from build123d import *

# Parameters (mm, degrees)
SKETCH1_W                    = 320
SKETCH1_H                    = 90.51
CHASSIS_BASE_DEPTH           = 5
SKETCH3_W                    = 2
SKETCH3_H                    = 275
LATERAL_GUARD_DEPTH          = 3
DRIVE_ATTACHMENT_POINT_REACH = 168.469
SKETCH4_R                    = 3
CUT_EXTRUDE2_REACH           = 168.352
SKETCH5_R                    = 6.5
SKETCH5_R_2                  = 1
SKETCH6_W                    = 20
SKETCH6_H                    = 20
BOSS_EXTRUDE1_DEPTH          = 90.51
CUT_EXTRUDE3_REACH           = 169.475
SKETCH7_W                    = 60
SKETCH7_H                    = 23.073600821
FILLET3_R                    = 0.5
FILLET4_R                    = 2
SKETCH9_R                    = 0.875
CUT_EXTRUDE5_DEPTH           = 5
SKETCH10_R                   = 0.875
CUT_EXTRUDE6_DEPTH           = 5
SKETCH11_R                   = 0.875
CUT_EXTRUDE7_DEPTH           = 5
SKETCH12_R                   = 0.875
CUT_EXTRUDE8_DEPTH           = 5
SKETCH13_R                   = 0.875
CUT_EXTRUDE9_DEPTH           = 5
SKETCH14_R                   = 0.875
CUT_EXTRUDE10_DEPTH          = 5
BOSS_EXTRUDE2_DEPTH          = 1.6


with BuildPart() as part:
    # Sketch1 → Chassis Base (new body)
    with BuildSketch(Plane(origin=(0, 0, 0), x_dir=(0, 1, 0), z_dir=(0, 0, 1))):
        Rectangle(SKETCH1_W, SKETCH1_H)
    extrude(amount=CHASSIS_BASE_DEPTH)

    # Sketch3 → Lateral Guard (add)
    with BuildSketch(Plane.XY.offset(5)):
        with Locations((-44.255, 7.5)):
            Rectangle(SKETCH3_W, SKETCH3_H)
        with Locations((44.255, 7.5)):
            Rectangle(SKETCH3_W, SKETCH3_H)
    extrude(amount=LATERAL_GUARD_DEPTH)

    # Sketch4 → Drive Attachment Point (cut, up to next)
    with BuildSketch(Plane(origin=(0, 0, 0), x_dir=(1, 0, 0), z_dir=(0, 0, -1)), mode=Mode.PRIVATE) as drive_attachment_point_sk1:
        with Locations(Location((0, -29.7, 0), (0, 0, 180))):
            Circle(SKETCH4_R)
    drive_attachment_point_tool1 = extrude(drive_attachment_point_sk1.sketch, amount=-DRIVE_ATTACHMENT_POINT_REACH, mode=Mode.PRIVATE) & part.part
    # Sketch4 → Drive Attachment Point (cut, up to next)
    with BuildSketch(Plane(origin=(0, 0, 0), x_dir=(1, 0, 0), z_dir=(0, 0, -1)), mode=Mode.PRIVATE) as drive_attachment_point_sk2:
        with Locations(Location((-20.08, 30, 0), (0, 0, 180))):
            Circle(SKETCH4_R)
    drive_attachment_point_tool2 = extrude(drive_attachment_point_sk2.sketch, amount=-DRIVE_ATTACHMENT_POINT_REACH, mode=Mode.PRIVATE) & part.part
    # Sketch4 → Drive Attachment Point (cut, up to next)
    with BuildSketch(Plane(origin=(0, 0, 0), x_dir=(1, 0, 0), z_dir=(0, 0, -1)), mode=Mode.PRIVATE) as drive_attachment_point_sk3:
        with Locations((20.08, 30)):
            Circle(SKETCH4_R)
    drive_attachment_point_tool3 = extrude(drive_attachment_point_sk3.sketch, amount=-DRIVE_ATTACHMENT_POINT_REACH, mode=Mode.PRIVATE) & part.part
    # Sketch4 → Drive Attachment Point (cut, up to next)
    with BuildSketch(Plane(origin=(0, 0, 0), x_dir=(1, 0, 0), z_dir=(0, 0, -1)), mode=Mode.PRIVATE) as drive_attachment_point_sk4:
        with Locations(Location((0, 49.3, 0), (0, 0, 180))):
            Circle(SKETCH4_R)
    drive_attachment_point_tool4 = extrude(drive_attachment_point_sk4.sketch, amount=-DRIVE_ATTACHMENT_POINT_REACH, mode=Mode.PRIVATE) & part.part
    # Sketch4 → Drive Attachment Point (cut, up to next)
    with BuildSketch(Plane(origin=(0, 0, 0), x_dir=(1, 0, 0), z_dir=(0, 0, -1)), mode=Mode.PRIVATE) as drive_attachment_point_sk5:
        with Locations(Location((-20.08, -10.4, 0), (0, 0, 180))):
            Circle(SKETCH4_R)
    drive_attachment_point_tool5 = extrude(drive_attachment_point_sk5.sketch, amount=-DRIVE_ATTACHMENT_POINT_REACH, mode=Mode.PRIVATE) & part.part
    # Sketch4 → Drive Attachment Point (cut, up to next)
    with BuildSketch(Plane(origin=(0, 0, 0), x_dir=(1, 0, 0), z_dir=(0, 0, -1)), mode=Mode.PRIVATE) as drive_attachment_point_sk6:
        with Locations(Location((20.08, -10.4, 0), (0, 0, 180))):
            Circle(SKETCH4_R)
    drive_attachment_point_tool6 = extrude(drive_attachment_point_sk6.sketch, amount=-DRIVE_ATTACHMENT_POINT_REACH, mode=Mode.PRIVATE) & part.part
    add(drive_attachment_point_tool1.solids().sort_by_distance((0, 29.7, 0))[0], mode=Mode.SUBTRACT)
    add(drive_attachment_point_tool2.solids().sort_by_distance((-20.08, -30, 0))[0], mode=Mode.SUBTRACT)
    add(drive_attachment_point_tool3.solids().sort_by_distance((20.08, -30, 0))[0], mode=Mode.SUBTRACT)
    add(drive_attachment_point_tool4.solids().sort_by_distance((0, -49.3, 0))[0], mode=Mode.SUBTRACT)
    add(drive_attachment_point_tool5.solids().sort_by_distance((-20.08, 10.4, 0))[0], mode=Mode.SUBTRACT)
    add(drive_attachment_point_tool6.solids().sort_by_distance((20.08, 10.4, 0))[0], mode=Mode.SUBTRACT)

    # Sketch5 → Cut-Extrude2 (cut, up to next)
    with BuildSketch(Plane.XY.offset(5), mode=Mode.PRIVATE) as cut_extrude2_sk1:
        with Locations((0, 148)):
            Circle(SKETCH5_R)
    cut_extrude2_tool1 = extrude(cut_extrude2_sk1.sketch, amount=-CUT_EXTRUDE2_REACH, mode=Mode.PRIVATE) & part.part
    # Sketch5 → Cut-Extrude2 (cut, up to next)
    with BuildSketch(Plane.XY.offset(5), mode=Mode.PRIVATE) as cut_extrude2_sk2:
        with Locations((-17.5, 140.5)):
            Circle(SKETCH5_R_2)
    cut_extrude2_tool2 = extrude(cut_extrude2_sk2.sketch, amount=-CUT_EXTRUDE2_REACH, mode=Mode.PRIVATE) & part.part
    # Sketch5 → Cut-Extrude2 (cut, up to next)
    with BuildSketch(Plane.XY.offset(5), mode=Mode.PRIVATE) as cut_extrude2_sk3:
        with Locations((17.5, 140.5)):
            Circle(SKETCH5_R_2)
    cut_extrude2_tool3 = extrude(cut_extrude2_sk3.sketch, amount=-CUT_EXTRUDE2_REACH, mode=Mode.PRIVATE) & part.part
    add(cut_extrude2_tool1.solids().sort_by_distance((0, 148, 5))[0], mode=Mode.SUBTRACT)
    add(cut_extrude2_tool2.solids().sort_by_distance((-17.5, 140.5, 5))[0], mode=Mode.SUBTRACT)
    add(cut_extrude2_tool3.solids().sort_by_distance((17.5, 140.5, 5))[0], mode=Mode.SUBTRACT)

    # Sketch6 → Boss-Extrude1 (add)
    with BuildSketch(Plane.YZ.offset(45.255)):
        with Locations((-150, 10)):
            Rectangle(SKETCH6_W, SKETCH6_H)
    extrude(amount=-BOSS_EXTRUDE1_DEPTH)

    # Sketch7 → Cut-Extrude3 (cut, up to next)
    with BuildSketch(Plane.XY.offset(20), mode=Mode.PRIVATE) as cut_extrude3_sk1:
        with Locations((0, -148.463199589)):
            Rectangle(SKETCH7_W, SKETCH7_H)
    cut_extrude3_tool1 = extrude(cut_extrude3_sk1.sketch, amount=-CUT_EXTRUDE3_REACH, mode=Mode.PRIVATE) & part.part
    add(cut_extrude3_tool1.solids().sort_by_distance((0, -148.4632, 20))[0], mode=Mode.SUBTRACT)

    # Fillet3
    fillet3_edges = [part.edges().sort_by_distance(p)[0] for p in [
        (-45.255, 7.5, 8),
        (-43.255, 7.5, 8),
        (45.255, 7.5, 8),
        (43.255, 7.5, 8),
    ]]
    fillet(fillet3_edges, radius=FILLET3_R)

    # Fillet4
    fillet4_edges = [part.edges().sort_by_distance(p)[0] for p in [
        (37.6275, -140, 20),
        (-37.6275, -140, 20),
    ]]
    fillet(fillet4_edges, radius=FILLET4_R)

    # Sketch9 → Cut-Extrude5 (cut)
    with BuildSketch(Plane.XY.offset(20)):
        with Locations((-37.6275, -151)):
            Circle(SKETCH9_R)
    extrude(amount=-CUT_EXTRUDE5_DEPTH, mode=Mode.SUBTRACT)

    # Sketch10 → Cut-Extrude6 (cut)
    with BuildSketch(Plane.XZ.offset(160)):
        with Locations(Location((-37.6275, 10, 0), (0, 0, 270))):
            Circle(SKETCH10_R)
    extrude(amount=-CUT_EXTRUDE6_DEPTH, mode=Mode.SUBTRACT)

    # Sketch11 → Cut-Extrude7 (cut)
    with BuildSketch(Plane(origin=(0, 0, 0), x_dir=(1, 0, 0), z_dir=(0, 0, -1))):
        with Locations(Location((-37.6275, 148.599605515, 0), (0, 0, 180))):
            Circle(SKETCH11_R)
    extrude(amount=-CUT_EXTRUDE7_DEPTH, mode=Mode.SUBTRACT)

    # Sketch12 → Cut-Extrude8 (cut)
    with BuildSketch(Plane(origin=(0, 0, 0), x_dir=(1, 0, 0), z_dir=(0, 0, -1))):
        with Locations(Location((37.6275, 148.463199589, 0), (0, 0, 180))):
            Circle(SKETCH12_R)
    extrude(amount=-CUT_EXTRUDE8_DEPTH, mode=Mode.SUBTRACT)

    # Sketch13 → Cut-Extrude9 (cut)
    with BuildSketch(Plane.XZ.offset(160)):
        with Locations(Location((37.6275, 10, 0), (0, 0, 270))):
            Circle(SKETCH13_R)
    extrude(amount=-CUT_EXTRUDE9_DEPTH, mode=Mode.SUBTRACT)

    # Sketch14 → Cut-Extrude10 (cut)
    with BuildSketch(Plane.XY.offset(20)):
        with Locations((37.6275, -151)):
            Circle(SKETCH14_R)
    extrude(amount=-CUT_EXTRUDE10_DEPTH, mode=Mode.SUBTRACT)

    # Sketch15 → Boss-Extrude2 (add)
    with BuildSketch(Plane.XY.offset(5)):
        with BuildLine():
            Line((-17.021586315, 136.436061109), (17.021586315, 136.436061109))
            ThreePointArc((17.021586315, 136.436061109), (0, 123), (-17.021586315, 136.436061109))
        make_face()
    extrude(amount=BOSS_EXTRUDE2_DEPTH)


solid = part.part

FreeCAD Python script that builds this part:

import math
import FreeCAD as App
import Part
import Sketcher
from FreeCAD import Vector
Q = App.Units.Quantity


def edges_at(feature, points):
    """Names of the edges that pass closest to the given points."""
    edges = feature.Shape.Edges
    near = lambda p: min(range(len(edges)), key=lambda i: edges[i].distToShape(Part.Vertex(*p))[0])
    return sorted({f"Edge{near(p) + 1}" for p in points})


def add_polygon(sketch, points):
    """Adds a closed chain of lines whose ends are joined by coincident constraints."""
    first, n = sketch.GeometryCount, len(points)
    for a, b in zip(points, points[1:] + points[:1]):
        sketch.addGeometry(Part.LineSegment(App.Vector(*a, 0), App.Vector(*b, 0)), False)
    for i in range(n):
        sketch.addConstraint(Sketcher.Constraint("Coincident", first + i, 2, first + (i + 1) % n, 1))

doc = App.newDocument("Part")
params = doc.addObject("Spreadsheet::Sheet", "Params")
for row, (alias, value) in enumerate([
    ("sketch1_height", "320 mm"),
    ("sketch1_width", "90.51 mm"),
    ("pad1_length", "5 mm"),
    ("sketch2_width", "2 mm"),
    ("sketch2_height", "275 mm"),
    ("pad2_length", "3 mm"),
    ("sketch3_diameter", "6 mm"),
    ("sketch4_diameter", "6 mm"),
    ("sketch5_diameter", "6 mm"),
    ("sketch6_diameter", "6 mm"),
    ("sketch7_diameter", "6 mm"),
    ("sketch8_diameter", "6 mm"),
    ("sketch9_diameter", "13 mm"),
    ("sketch10_diameter", "2 mm"),
    ("sketch11_diameter", "2 mm"),
    ("sketch12_width", "20 mm"),
    ("pad3_length", "90.51 mm"),
    ("sketch13_width", "60 mm"),
    ("fillet_radius", "0.5 mm"),
    ("fillet2_radius", "2 mm"),
    ("sketch14_diameter", "1.75 mm"),
    ("pocket11_length", "5 mm"),
    ("sketch15_diameter", "1.75 mm"),
    ("pocket12_length", "5 mm"),
    ("sketch16_diameter", "1.75 mm"),
    ("pocket13_length", "5 mm"),
    ("sketch17_diameter", "1.75 mm"),
    ("pocket14_length", "5 mm"),
    ("sketch18_diameter", "1.75 mm"),
    ("pocket15_length", "5 mm"),
    ("sketch19_diameter", "1.75 mm"),
    ("pocket16_length", "5 mm"),
    ("sketch20_radius", "17.5 mm"),
    ("pad4_length", "1.6 mm"),
], start=1):
    params.set(f"A{row}", alias)
    params.set(f"B{row}", "=" + value)
    params.setAlias(f"B{row}", alias)

body = doc.addObject("PartDesign::Body", "Body")

# Sketch on XY plane
sketch1 = body.newObject("Sketcher::SketchObject", "Sketch")
sketch1.AttachmentSupport = (doc.getObject("XY_Plane"), [""])
sketch1.MapMode = "FlatFace"
add_polygon(sketch1, [(-45, -160), (45, -160), (45, 160), (-45, 160)])  # lines 0-3
sketch1.addConstraint([
    Sketcher.Constraint("Horizontal", 0),
    Sketcher.Constraint("Vertical", 1),
    Sketcher.Constraint("Horizontal", 2),
    Sketcher.Constraint("Vertical", 3),
    Sketcher.Constraint("Symmetric", 0, 2, 2, 2, -1, 1),
    Sketcher.Constraint("DistanceY", 1, 1, 1, 2, Q("320 mm")),
    Sketcher.Constraint("DistanceX", 0, 1, 0, 2, Q("90.51 mm")),
])
sketch1.setExpression("Constraints[9]", "Params.sketch1_height")
sketch1.setExpression("Constraints[10]", "Params.sketch1_width")
pad1 = body.newObject("PartDesign::Pad", "Pad")
pad1.Profile = sketch1
pad1.setExpression("Length", "Params.pad1_length")

# Sketch on XY plane
sketch2 = body.newObject("Sketcher::SketchObject", "Sketch001")
sketch2.AttachmentSupport = (doc.getObject("XY_Plane"), [""])
sketch2.MapMode = "FlatFace"
sketch2.AttachmentOffset = App.Placement(Vector(0, 0, 5), App.Rotation())
add_polygon(sketch2, [(-45.3, 145), (-45.3, -130), (-43.3, -130), (-43.3, 145)])  # lines 0-3
add_polygon(sketch2, [(43.3, 145), (43.3, -130), (45.3, -130), (45.3, 145)])  # lines 4-7
sketch2.addConstraint([
    Sketcher.Constraint("Vertical", 0),
    Sketcher.Constraint("Horizontal", 1),
    Sketcher.Constraint("Vertical", 2),
    Sketcher.Constraint("Horizontal", 3),
    Sketcher.Constraint("Vertical", 4),
    Sketcher.Constraint("Horizontal", 5),
    Sketcher.Constraint("Vertical", 6),
    Sketcher.Constraint("Horizontal", 7),
    Sketcher.Constraint("Symmetric", 1, 2, 4, 2, -2),
    Sketcher.Constraint("Symmetric", 3, 2, 6, 2, -2),
    Sketcher.Constraint("DistanceX", 1, 1, 1, 2, Q("2 mm")),
    Sketcher.Constraint("DistanceY", 0, 2, 0, 1, Q("275 mm")),
    Sketcher.Constraint("DistanceY", 0, 2, -1, 1, Q("130 mm")),
    Sketcher.Constraint("DistanceX", 1, 2, 4, 2, Q("86.51 mm")),
])
sketch2.setExpression("Constraints[18]", "Params.sketch2_width")
sketch2.setExpression("Constraints[19]", "Params.sketch2_height")
pad2 = body.newObject("PartDesign::Pad", "Pad001")
pad2.Profile = sketch2
pad2.setExpression("Length", "Params.pad2_length")

# Sketch on XY plane
sketch3 = body.newObject("Sketcher::SketchObject", "Sketch002")
sketch3.AttachmentSupport = (doc.getObject("XY_Plane"), [""])
sketch3.MapMode = "FlatFace"
sketch3.addGeometry(Part.Circle(Vector(0, 29.7, 0), Vector(0, 0, 1), 3), False)
sketch3.addConstraint([
    Sketcher.Constraint("PointOnObject", 0, 3, -2),
    Sketcher.Constraint("Diameter", 0, Q("6 mm")),
    Sketcher.Constraint("DistanceY", -1, 1, 0, 3, Q("29.7 mm")),
])
sketch3.setExpression("Constraints[1]", "Params.sketch3_diameter")
pocket1 = body.newObject("PartDesign::Pocket", "Pocket")
pocket1.Profile = sketch3
pocket1.Type = "UpToFirst"
pocket1.Reversed = True

# Sketch on XY plane
sketch4 = body.newObject("Sketcher::SketchObject", "Sketch003")
sketch4.AttachmentSupport = (doc.getObject("XY_Plane"), [""])
sketch4.MapMode = "FlatFace"
sketch4.addGeometry(Part.Circle(Vector(-20.1, -30, 0), Vector(0, 0, 1), 3), False)
sketch4.addConstraint([
    Sketcher.Constraint("Diameter", 0, Q("6 mm")),
    Sketcher.Constraint("DistanceY", 0, 3, -1, 1, Q("30 mm")),
    Sketcher.Constraint("DistanceX", 0, 3, -1, 1, Q("20.08 mm")),
])
sketch4.setExpression("Constraints[0]", "Params.sketch4_diameter")
pocket2 = body.newObject("PartDesign::Pocket", "Pocket001")
pocket2.Profile = sketch4
pocket2.Type = "UpToFirst"
pocket2.Reversed = True

# Sketch on XY plane
sketch5 = body.newObject("Sketcher::SketchObject", "Sketch004")
sketch5.AttachmentSupport = (doc.getObject("XY_Plane"), [""])
sketch5.MapMode = "FlatFace"
sketch5.addGeometry(Part.Circle(Vector(20.1, -30, 0), Vector(0, 0, 1), 3), False)
sketch5.addConstraint([
    Sketcher.Constraint("Diameter", 0, Q("6 mm")),
    Sketcher.Constraint("DistanceY", 0, 3, -1, 1, Q("30 mm")),
    Sketcher.Constraint("DistanceX", -1, 1, 0, 3, Q("20.08 mm")),
])
sketch5.setExpression("Constraints[0]", "Params.sketch5_diameter")
pocket3 = body.newObject("PartDesign::Pocket", "Pocket002")
pocket3.Profile = sketch5
pocket3.Type = "UpToFirst"
pocket3.Reversed = True

# Sketch on XY plane
sketch6 = body.newObject("Sketcher::SketchObject", "Sketch005")
sketch6.AttachmentSupport = (doc.getObject("XY_Plane"), [""])
sketch6.MapMode = "FlatFace"
sketch6.addGeometry(Part.Circle(Vector(0, -49.3, 0), Vector(0, 0, 1), 3), False)
sketch6.addConstraint([
    Sketcher.Constraint("PointOnObject", 0, 3, -2),
    Sketcher.Constraint("Diameter", 0, Q("6 mm")),
    Sketcher.Constraint("DistanceY", 0, 3, -1, 1, Q("49.3 mm")),
])
sketch6.setExpression("Constraints[1]", "Params.sketch6_diameter")
pocket4 = body.newObject("PartDesign::Pocket", "Pocket003")
pocket4.Profile = sketch6
pocket4.Type = "UpToFirst"
pocket4.Reversed = True

# Sketch on XY plane
sketch7 = body.newObject("Sketcher::SketchObject", "Sketch006")
sketch7.AttachmentSupport = (doc.getObject("XY_Plane"), [""])
sketch7.MapMode = "FlatFace"
sketch7.addGeometry(Part.Circle(Vector(-20.1, 10.4, 0), Vector(0, 0, 1), 3), False)
sketch7.addConstraint([
    Sketcher.Constraint("Diameter", 0, Q("6 mm")),
    Sketcher.Constraint("DistanceY", -1, 1, 0, 3, Q("10.4 mm")),
    Sketcher.Constraint("DistanceX", 0, 3, -1, 1, Q("20.08 mm")),
])
sketch7.setExpression("Constraints[0]", "Params.sketch7_diameter")
pocket5 = body.newObject("PartDesign::Pocket", "Pocket004")
pocket5.Profile = sketch7
pocket5.Type = "UpToFirst"
pocket5.Reversed = True

# Sketch on XY plane
sketch8 = body.newObject("Sketcher::SketchObject", "Sketch007")
sketch8.AttachmentSupport = (doc.getObject("XY_Plane"), [""])
sketch8.MapMode = "FlatFace"
sketch8.addGeometry(Part.Circle(Vector(20.1, 10.4, 0), Vector(0, 0, 1), 3), False)
sketch8.addConstraint([
    Sketcher.Constraint("Diameter", 0, Q("6 mm")),
    Sketcher.Constraint("DistanceY", -1, 1, 0, 3, Q("10.4 mm")),
    Sketcher.Constraint("DistanceX", -1, 1, 0, 3, Q("20.08 mm")),
])
sketch8.setExpression("Constraints[0]", "Params.sketch8_diameter")
pocket6 = body.newObject("PartDesign::Pocket", "Pocket005")
pocket6.Profile = sketch8
pocket6.Type = "UpToFirst"
pocket6.Reversed = True

# Sketch on XY plane
sketch9 = body.newObject("Sketcher::SketchObject", "Sketch008")
sketch9.AttachmentSupport = (doc.getObject("XY_Plane"), [""])
sketch9.MapMode = "FlatFace"
sketch9.AttachmentOffset = App.Placement(Vector(0, 0, 5), App.Rotation())
sketch9.addGeometry(Part.Circle(Vector(0, 148, 0), Vector(0, 0, 1), 6), False)
sketch9.addConstraint([
    Sketcher.Constraint("PointOnObject", 0, 3, -2),
    Sketcher.Constraint("Diameter", 0, Q("13 mm")),
    Sketcher.Constraint("DistanceY", -1, 1, 0, 3, Q("148 mm")),
])
sketch9.setExpression("Constraints[1]", "Params.sketch9_diameter")
pocket7 = body.newObject("PartDesign::Pocket", "Pocket006")
pocket7.Profile = sketch9
pocket7.Type = "UpToFirst"

# Sketch on XY plane
sketch10 = body.newObject("Sketcher::SketchObject", "Sketch009")
sketch10.AttachmentSupport = (doc.getObject("XY_Plane"), [""])
sketch10.MapMode = "FlatFace"
sketch10.AttachmentOffset = App.Placement(Vector(0, 0, 5), App.Rotation())
sketch10.addGeometry(Part.Circle(Vector(-17.5, 140.5, 0), Vector(0, 0, 1), 1), False)
sketch10.addConstraint([
    Sketcher.Constraint("Diameter", 0, Q("2 mm")),
    Sketcher.Constraint("DistanceX", 0, 3, -1, 1, Q("17.5 mm")),
    Sketcher.Constraint("DistanceY", -1, 1, 0, 3, Q("140.5 mm")),
])
sketch10.setExpression("Constraints[0]", "Params.sketch10_diameter")
pocket8 = body.newObject("PartDesign::Pocket", "Pocket007")
pocket8.Profile = sketch10
pocket8.Type = "UpToFirst"

# Sketch on XY plane
sketch11 = body.newObject("Sketcher::SketchObject", "Sketch010")
sketch11.AttachmentSupport = (doc.getObject("XY_Plane"), [""])
sketch11.MapMode = "FlatFace"
sketch11.AttachmentOffset = App.Placement(Vector(0, 0, 5), App.Rotation())
sketch11.addGeometry(Part.Circle(Vector(17.5, 140.5, 0), Vector(0, 0, 1), 1), False)
sketch11.addConstraint([
    Sketcher.Constraint("Diameter", 0, Q("2 mm")),
    Sketcher.Constraint("DistanceX", -1, 1, 0, 3, Q("17.5 mm")),
    Sketcher.Constraint("DistanceY", -1, 1, 0, 3, Q("140.5 mm")),
])
sketch11.setExpression("Constraints[0]", "Params.sketch11_diameter")
pocket9 = body.newObject("PartDesign::Pocket", "Pocket008")
pocket9.Profile = sketch11
pocket9.Type = "UpToFirst"

# Sketch on YZ plane
sketch12 = body.newObject("Sketcher::SketchObject", "Sketch011")
sketch12.AttachmentSupport = (doc.getObject("YZ_Plane"), [""])
sketch12.MapMode = "FlatFace"
sketch12.AttachmentOffset = App.Placement(Vector(0, 0, 45.255), App.Rotation())
add_polygon(sketch12, [(-160, 20), (-160, 0), (-140, 0), (-140, 20)])  # lines 0-3
sketch12.addConstraint([
    Sketcher.Constraint("Vertical", 0),
    Sketcher.Constraint("Horizontal", 1),
    Sketcher.Constraint("Vertical", 2),
    Sketcher.Constraint("Horizontal", 3),
    Sketcher.Constraint("PointOnObject", 0, 2, -1),
    Sketcher.Constraint("Equal", 3, 0),
    Sketcher.Constraint("DistanceX", 1, 1, 1, 2, Q("20 mm")),
    Sketcher.Constraint("DistanceX", 0, 2, -1, 1, Q("160 mm")),
])
sketch12.setExpression("Constraints[10]", "Params.sketch12_width")
pad3 = body.newObject("PartDesign::Pad", "Pad002")
pad3.Profile = sketch12
pad3.setExpression("Length", "Params.pad3_length")
pad3.Reversed = True

# Sketch on XY plane
sketch13 = body.newObject("Sketcher::SketchObject", "Sketch012")
sketch13.AttachmentSupport = (doc.getObject("XY_Plane"), [""])
sketch13.MapMode = "FlatFace"
sketch13.AttachmentOffset = App.Placement(Vector(0, 0, 20), App.Rotation())
add_polygon(sketch13, [(-30, -137), (-30, -160), (30, -160), (30, -137)])  # lines 0-3
sketch13.addConstraint([
    Sketcher.Constraint("Vertical", 0),
    Sketcher.Constraint("Horizontal", 1),
    Sketcher.Constraint("Vertical", 2),
    Sketcher.Constraint("Horizontal", 3),
    Sketcher.Constraint("DistanceX", 1, 1, 1, 2, Q("60 mm")),
    Sketcher.Constraint("DistanceX", 0, 2, -1, 1, Q("30 mm")),
    Sketcher.Constraint("DistanceY", 0, 2, -1, 1, Q("160 mm")),
    Sketcher.Constraint("DistanceY", 0, 2, 0, 1, Q("23.073601 mm")),
])
sketch13.setExpression("Constraints[8]", "Params.sketch13_width")
pocket10 = body.newObject("PartDesign::Pocket", "Pocket009")
pocket10.Profile = sketch13
pocket10.Type = "UpToFirst"
doc.recompute()

fillet = body.newObject("PartDesign::Fillet", "Fillet")
fillet.Base = (pocket10, edges_at(pocket10, [
    (-45.255, 7.5, 8),
    (-43.255, 7.5, 8),
    (45.255, 7.5, 8),
    (43.255, 7.5, 8),
]))
fillet.setExpression("Radius", "Params.fillet_radius")
doc.recompute()

fillet2 = body.newObject("PartDesign::Fillet", "Fillet001")
fillet2.Base = (fillet, edges_at(fillet, [(37.627, -140, 20), (-37.627, -140, 20)]))
fillet2.setExpression("Radius", "Params.fillet2_radius")

# Sketch on XY plane
sketch14 = body.newObject("Sketcher::SketchObject", "Sketch013")
sketch14.AttachmentSupport = (doc.getObject("XY_Plane"), [""])
sketch14.MapMode = "FlatFace"
sketch14.AttachmentOffset = App.Placement(Vector(0, 0, 20), App.Rotation())
sketch14.addGeometry(Part.Circle(Vector(-37.6, -151, 0), Vector(0, 0, 1), 0.9), False)
sketch14.addConstraint([
    Sketcher.Constraint("Diameter", 0, Q("1.75 mm")),
    Sketcher.Constraint("DistanceY", 0, 3, -1, 1, Q("151 mm")),
    Sketcher.Constraint("DistanceX", 0, 3, -1, 1, Q("37.6275 mm")),
])
sketch14.setExpression("Constraints[0]", "Params.sketch14_diameter")
pocket11 = body.newObject("PartDesign::Pocket", "Pocket010")
pocket11.Profile = sketch14
pocket11.setExpression("Length", "Params.pocket11_length")

# Sketch on XZ plane
sketch15 = body.newObject("Sketcher::SketchObject", "Sketch014")
sketch15.AttachmentSupport = (doc.getObject("XZ_Plane"), [""])
sketch15.MapMode = "FlatFace"
sketch15.AttachmentOffset = App.Placement(Vector(0, 0, 160), App.Rotation())
sketch15.addGeometry(Part.Circle(Vector(-37.6, 10, 0), Vector(0, 0, 1), 0.9), False)
sketch15.addConstraint([
    Sketcher.Constraint("Diameter", 0, Q("1.75 mm")),
    Sketcher.Constraint("DistanceY", -1, 1, 0, 3, Q("10 mm")),
    Sketcher.Constraint("DistanceX", 0, 3, -1, 1, Q("37.6275 mm")),
])
sketch15.setExpression("Constraints[0]", "Params.sketch15_diameter")
pocket12 = body.newObject("PartDesign::Pocket", "Pocket011")
pocket12.Profile = sketch15
pocket12.setExpression("Length", "Params.pocket12_length")

# Sketch on XY plane
sketch16 = body.newObject("Sketcher::SketchObject", "Sketch015")
sketch16.AttachmentSupport = (doc.getObject("XY_Plane"), [""])
sketch16.MapMode = "FlatFace"
sketch16.addGeometry(Part.Circle(Vector(-37.6, -148.6, 0), Vector(0, 0, 1), 0.9), False)
sketch16.addConstraint([
    Sketcher.Constraint("Diameter", 0, Q("1.75 mm")),
    Sketcher.Constraint("DistanceX", 0, 3, -1, 1, Q("37.6275 mm")),
    Sketcher.Constraint("DistanceY", 0, 3, -1, 1, Q("148.599606 mm")),
])
sketch16.setExpression("Constraints[0]", "Params.sketch16_diameter")
pocket13 = body.newObject("PartDesign::Pocket", "Pocket012")
pocket13.Profile = sketch16
pocket13.setExpression("Length", "Params.pocket13_length")
pocket13.Reversed = True

# Sketch on XY plane
sketch17 = body.newObject("Sketcher::SketchObject", "Sketch016")
sketch17.AttachmentSupport = (doc.getObject("XY_Plane"), [""])
sketch17.MapMode = "FlatFace"
sketch17.addGeometry(Part.Circle(Vector(37.6, -148.5, 0), Vector(0, 0, 1), 0.9), False)
sketch17.addConstraint([
    Sketcher.Constraint("Diameter", 0, Q("1.75 mm")),
    Sketcher.Constraint("DistanceX", -1, 1, 0, 3, Q("37.6275 mm")),
    Sketcher.Constraint("DistanceY", 0, 3, -1, 1, Q("148.4632 mm")),
])
sketch17.setExpression("Constraints[0]", "Params.sketch17_diameter")
pocket14 = body.newObject("PartDesign::Pocket", "Pocket013")
pocket14.Profile = sketch17
pocket14.setExpression("Length", "Params.pocket14_length")
pocket14.Reversed = True

# Sketch on XZ plane
sketch18 = body.newObject("Sketcher::SketchObject", "Sketch017")
sketch18.AttachmentSupport = (doc.getObject("XZ_Plane"), [""])
sketch18.MapMode = "FlatFace"
sketch18.AttachmentOffset = App.Placement(Vector(0, 0, 160), App.Rotation())
sketch18.addGeometry(Part.Circle(Vector(37.6, 10, 0), Vector(0, 0, 1), 0.9), False)
sketch18.addConstraint([
    Sketcher.Constraint("Diameter", 0, Q("1.75 mm")),
    Sketcher.Constraint("DistanceY", -1, 1, 0, 3, Q("10 mm")),
    Sketcher.Constraint("DistanceX", -1, 1, 0, 3, Q("37.6275 mm")),
])
sketch18.setExpression("Constraints[0]", "Params.sketch18_diameter")
pocket15 = body.newObject("PartDesign::Pocket", "Pocket014")
pocket15.Profile = sketch18
pocket15.setExpression("Length", "Params.pocket15_length")

# Sketch on XY plane
sketch19 = body.newObject("Sketcher::SketchObject", "Sketch018")
sketch19.AttachmentSupport = (doc.getObject("XY_Plane"), [""])
sketch19.MapMode = "FlatFace"
sketch19.AttachmentOffset = App.Placement(Vector(0, 0, 20), App.Rotation())
sketch19.addGeometry(Part.Circle(Vector(37.6, -151, 0), Vector(0, 0, 1), 0.9), False)
sketch19.addConstraint([
    Sketcher.Constraint("Diameter", 0, Q("1.75 mm")),
    Sketcher.Constraint("DistanceY", 0, 3, -1, 1, Q("151 mm")),
    Sketcher.Constraint("DistanceX", -1, 1, 0, 3, Q("37.6275 mm")),
])
sketch19.setExpression("Constraints[0]", "Params.sketch19_diameter")
pocket16 = body.newObject("PartDesign::Pocket", "Pocket015")
pocket16.Profile = sketch19
pocket16.setExpression("Length", "Params.pocket16_length")

# Sketch on XY plane
sketch20 = body.newObject("Sketcher::SketchObject", "Sketch019")
sketch20.AttachmentSupport = (doc.getObject("XY_Plane"), [""])
sketch20.MapMode = "FlatFace"
sketch20.AttachmentOffset = App.Placement(Vector(0, 0, 5), App.Rotation())
sketch20.addGeometry([
    Part.LineSegment(Vector(17, 136, 0), Vector(-17, 136, 0)),
    Part.ArcOfCircle(Part.Circle(Vector(0, 140, 0), Vector(0, 0, 1), 18), math.radians(-167), math.radians(-13)),
], False)
sketch20.addConstraint([
    Sketcher.Constraint("Coincident", 0, 1, 1, 2),
    Sketcher.Constraint("Coincident", 1, 1, 0, 2),
    Sketcher.Constraint("Horizontal", 0),
    Sketcher.Constraint("PointOnObject", 1, 3, -2),
    Sketcher.Constraint("Radius", 1, Q("17.5 mm")),
    Sketcher.Constraint("DistanceY", -1, 1, 1, 3, Q("140.5 mm")),
    Sketcher.Constraint("DistanceX", 0, 2, 0, 1, Q("34.043173 mm")),
])
sketch20.setExpression("Constraints[4]", "Params.sketch20_radius")
pad4 = body.newObject("PartDesign::Pad", "Pad003")
pad4.Profile = sketch20
pad4.setExpression("Length", "Params.pad4_length")

doc.recompute()
